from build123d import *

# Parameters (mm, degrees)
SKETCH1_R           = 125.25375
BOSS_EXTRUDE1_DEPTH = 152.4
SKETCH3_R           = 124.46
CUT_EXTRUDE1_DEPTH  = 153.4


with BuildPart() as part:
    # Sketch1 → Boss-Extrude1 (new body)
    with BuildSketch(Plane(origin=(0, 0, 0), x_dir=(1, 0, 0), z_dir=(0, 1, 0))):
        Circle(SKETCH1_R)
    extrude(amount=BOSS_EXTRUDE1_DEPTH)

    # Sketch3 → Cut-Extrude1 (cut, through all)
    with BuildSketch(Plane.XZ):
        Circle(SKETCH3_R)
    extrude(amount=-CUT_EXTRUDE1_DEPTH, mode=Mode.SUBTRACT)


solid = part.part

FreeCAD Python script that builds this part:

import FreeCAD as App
import Part
import Sketcher

V = App.Vector
Q = App.Units.Quantity

doc = App.newDocument("Part")
params = doc.addObject("Spreadsheet::Sheet", "Params")
for row, (alias, value) in enumerate([
    ("pad1_length", "6 in"),
    ("sketch2_diameter", "9.8 in"),
], start=1):
    params.set(f"A{row}", alias)
    params.set(f"B{row}", "=" + value)
    params.setAlias(f"B{row}", alias)

body = doc.addObject("PartDesign::Body", "Body")

# Sketch on XZ plane
sketch1 = doc.addObject("Sketcher::SketchObject", "Sketch")
body.addObject(sketch1)
sketch1.AttachmentSupport = (doc.XZ_Plane, [""])
sketch1.MapMode = "FlatFace"
sketch1.addGeometry(Part.Circle(V(0, 0, 0), V(0, 0, 1), 125.25375), False)
sketch1.addConstraint([
    Sketcher.Constraint("Coincident", 0, 3, -1, 1),
    Sketcher.Constraint("Diameter", 0, Q("9.8625 in")),
])
pad1 = doc.addObject("PartDesign::Pad", "Pad")
body.addObject(pad1)
pad1.Profile = sketch1
pad1.setExpression("Length", "Params.pad1_length")
pad1.Reversed = True

# Sketch on XZ plane
sketch2 = doc.addObject("Sketcher::SketchObject", "Sketch001")
body.addObject(sketch2)
sketch2.AttachmentSupport = (doc.XZ_Plane, [""])
sketch2.MapMode = "FlatFace"
sketch2.addGeometry(Part.Circle(V(0, 0, 0), V(0, 0, 1), 124.46), False)
sketch2.addConstraint([
    Sketcher.Constraint("Coincident", 0, 3, -1, 1),
    Sketcher.Constraint("Diameter", 0, Q("9.8 in")),
])
sketch2.setExpression("Constraints[1]", "Params.sketch2_diameter")
pocket1 = doc.addObject("PartDesign::Pocket", "Pocket")
body.addObject(pocket1)
pocket1.Profile = sketch2
pocket1.Type = "ThroughAll"

doc.recompute()
